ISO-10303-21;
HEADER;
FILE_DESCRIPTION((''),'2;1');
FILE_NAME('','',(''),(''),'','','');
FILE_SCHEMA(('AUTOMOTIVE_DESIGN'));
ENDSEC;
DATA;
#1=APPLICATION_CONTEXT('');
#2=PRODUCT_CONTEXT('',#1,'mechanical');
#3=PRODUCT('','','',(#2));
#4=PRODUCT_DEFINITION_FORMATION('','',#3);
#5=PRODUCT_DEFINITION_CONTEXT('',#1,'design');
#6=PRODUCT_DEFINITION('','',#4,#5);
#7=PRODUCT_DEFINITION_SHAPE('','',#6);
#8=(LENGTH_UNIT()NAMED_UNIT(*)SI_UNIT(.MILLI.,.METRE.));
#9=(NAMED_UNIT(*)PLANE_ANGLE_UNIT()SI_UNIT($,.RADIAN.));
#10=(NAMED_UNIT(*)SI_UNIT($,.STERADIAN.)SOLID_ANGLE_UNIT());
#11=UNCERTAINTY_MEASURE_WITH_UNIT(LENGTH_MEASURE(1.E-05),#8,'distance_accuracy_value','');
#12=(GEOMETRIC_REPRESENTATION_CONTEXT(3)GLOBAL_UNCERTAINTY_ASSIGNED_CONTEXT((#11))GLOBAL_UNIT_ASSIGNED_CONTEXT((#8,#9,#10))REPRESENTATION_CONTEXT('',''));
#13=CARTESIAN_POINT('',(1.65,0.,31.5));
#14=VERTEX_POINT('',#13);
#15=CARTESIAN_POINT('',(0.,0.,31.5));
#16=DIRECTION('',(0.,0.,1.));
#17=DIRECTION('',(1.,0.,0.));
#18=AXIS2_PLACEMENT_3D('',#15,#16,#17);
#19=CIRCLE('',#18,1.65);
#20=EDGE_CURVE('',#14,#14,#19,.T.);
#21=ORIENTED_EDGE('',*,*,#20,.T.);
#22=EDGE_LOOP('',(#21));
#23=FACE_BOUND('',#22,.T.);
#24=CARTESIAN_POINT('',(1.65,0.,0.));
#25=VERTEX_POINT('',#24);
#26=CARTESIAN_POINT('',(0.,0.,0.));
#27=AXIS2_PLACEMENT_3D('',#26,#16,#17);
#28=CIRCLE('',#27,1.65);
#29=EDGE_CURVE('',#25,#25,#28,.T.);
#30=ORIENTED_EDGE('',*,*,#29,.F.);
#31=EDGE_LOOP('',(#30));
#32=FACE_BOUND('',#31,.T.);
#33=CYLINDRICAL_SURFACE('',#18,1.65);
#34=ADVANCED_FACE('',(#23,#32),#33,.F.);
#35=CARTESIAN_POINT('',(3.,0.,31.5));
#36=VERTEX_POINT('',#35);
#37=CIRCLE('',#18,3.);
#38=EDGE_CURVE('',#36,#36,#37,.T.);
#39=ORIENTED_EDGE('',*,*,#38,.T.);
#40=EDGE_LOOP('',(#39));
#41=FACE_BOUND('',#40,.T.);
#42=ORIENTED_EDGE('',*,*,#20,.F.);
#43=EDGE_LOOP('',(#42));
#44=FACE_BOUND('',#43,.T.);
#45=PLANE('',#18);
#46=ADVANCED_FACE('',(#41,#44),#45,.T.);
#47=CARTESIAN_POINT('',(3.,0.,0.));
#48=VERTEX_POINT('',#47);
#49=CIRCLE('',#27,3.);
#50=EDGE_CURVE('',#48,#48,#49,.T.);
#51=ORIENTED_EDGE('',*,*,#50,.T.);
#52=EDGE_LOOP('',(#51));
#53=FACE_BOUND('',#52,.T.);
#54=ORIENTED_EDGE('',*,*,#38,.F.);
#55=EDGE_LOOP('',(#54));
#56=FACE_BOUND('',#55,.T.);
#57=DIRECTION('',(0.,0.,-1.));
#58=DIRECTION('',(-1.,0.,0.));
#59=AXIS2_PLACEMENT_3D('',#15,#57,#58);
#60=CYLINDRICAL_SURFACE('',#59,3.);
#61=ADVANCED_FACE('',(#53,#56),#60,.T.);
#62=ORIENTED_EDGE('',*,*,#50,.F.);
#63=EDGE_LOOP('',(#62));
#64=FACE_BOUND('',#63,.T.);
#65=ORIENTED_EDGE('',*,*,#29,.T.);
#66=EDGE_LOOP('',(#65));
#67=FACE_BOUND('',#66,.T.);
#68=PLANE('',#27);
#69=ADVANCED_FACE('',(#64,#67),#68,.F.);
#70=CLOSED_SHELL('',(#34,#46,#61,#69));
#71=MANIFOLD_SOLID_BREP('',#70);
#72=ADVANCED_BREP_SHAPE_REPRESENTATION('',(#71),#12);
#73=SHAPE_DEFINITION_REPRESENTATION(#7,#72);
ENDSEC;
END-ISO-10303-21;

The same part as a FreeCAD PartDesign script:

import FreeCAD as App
import Part
import Sketcher
Q = App.Units.Quantity

doc = App.newDocument("Part")
body = doc.addObject("PartDesign::Body", "Body")

sketch1 = body.newObject("Sketcher::SketchObject", "Sketch")
sketch1.AttachmentSupport = (doc.getObject("XY_Plane"), [""])
sketch1.MapMode = "FlatFace"
sketch1.addGeometry(Part.Circle(App.Vector(0, 0, 0), App.Vector(0, 0, 1), 3), False)
sketch1.addConstraint([
    Sketcher.Constraint("Coincident", 0, 3, -1, 1),
    Sketcher.Constraint("Diameter", 0, Q("6 mm")),
])
pad1 = body.newObject("PartDesign::Pad", "Pad")
pad1.Profile = sketch1
pad1.Length = 31.5

sketch2 = body.newObject("Sketcher::SketchObject", "Sketch001")
sketch2.AttachmentSupport = (doc.getObject("XY_Plane"), [""])
sketch2.MapMode = "FlatFace"
sketch2.AttachmentOffset = App.Placement(App.Vector(0, 0, 31.5), App.Rotation())
sketch2.addGeometry(Part.Circle(App.Vector(0, 0, 0), App.Vector(0, 0, 1), 1.65), False)
sketch2.addConstraint([
    Sketcher.Constraint("Coincident", 0, 3, -1, 1),
    Sketcher.Constraint("Diameter", 0, Q("3.3 mm")),
])
doc.recompute()
hole = body.newObject("PartDesign::Hole", "Hole")
hole.Profile = sketch2
hole.ThreadType = "None"
hole.Diameter = 3.3
hole.DepthType = "ThroughAll"

doc.recompute()
